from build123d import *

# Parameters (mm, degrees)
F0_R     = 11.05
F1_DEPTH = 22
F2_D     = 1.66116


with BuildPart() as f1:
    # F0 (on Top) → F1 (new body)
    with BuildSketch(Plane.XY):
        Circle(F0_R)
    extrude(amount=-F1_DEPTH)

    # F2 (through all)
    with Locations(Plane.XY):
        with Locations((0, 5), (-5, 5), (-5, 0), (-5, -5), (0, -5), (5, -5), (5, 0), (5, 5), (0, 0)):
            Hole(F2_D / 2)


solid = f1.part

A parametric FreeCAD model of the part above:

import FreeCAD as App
import Part
import Sketcher
from FreeCAD import Vector

doc = App.newDocument("Part")
body = doc.addObject("PartDesign::Body", "Body")

# Sketch on XY plane
sketch1 = body.newObject("Sketcher::SketchObject", "Sketch")
sketch1.AttachmentSupport = (doc.getObject("XY_Plane"), [""])
sketch1.MapMode = "FlatFace"
sketch1.addGeometry(Part.Circle(Vector(0, 0, 0), Vector(0, 0, 1), 11), False)
sketch1.addConstraint([
    Sketcher.Constraint("Coincident", 0, 3, -1, 1),
    Sketcher.Constraint("Diameter", 0, 22.1),
])
pad1 = body.newObject("PartDesign::Pad", "Pad")
pad1.Profile = sketch1
pad1.Length = 22
pad1.Reversed = True

# Sketch on XY plane
sketch2 = body.newObject("Sketcher::SketchObject", "Sketch001")
sketch2.AttachmentSupport = (doc.getObject("XY_Plane"), [""])
sketch2.MapMode = "FlatFace"
sketch2.addGeometry([
    Part.Circle(Vector(0, 5, 0), Vector(0, 0, 1), 0.8),  # 0
    Part.Circle(Vector(-5, 5, 0), Vector(0, 0, 1), 0.8),  # 1
    Part.Circle(Vector(-5, 0, 0), Vector(0, 0, 1), 0.8),  # 2
    Part.Circle(Vector(-5, -5, 0), Vector(0, 0, 1), 0.8),  # 3
    Part.Circle(Vector(0, -5, 0), Vector(0, 0, 1), 0.8),  # 4
    Part.Circle(Vector(5, -5, 0), Vector(0, 0, 1), 0.8),  # 5
    Part.Circle(Vector(5, 0, 0), Vector(0, 0, 1), 0.8),  # 6
    Part.Circle(Vector(5, 5, 0), Vector(0, 0, 1), 0.8),  # 7
    Part.Circle(Vector(0, 0, 0), Vector(0, 0, 1), 0.8),  # 8
], False)
sketch2.addConstraint([
    Sketcher.Constraint("Coincident", 8, 3, -1, 1),
    Sketcher.Constraint("Equal", 0, 1),
    Sketcher.Constraint("Equal", 1, 2),
    Sketcher.Constraint("Equal", 2, 3),
    Sketcher.Constraint("Equal", 3, 4),
    Sketcher.Constraint("Equal", 4, 5),
    Sketcher.Constraint("Equal", 5, 6),
    Sketcher.Constraint("Equal", 6, 7),
    Sketcher.Constraint("Equal", 7, 8),
    Sketcher.Constraint("Symmetric", 0, 3, 4, 3, -1, 1),
    Sketcher.Constraint("Symmetric", 1, 3, 5, 3, -1, 1),
    Sketcher.Constraint("Symmetric", 2, 3, 6, 3, -1, 1),
    Sketcher.Constraint("Symmetric", 3, 3, 7, 3, -1, 1),
    Sketcher.Constraint("Symmetric", 3, 3, 5, 3, -2),
    Sketcher.Constraint("PointOnObject", 0, 3, -2),
    Sketcher.Constraint("PointOnObject", 2, 3, -1),
    Sketcher.Constraint("Horizontal", 0, 3, 1, 3),
    Sketcher.Constraint("Vertical", 1, 3, 2, 3),
    Sketcher.Constraint("DistanceY", -1, 1, 0, 3, 5.0),
    Sketcher.Constraint("DistanceX", 1, 3, -1, 1, 5.0),
    Sketcher.Constraint("Diameter", 0, 1.66116),
])
doc.recompute()
hole = body.newObject("PartDesign::Hole", "Hole")
hole.Profile = sketch2
hole.ThreadType = "None"
hole.Diameter = 1.66116
hole.DepthType = "ThroughAll"

doc.recompute()
